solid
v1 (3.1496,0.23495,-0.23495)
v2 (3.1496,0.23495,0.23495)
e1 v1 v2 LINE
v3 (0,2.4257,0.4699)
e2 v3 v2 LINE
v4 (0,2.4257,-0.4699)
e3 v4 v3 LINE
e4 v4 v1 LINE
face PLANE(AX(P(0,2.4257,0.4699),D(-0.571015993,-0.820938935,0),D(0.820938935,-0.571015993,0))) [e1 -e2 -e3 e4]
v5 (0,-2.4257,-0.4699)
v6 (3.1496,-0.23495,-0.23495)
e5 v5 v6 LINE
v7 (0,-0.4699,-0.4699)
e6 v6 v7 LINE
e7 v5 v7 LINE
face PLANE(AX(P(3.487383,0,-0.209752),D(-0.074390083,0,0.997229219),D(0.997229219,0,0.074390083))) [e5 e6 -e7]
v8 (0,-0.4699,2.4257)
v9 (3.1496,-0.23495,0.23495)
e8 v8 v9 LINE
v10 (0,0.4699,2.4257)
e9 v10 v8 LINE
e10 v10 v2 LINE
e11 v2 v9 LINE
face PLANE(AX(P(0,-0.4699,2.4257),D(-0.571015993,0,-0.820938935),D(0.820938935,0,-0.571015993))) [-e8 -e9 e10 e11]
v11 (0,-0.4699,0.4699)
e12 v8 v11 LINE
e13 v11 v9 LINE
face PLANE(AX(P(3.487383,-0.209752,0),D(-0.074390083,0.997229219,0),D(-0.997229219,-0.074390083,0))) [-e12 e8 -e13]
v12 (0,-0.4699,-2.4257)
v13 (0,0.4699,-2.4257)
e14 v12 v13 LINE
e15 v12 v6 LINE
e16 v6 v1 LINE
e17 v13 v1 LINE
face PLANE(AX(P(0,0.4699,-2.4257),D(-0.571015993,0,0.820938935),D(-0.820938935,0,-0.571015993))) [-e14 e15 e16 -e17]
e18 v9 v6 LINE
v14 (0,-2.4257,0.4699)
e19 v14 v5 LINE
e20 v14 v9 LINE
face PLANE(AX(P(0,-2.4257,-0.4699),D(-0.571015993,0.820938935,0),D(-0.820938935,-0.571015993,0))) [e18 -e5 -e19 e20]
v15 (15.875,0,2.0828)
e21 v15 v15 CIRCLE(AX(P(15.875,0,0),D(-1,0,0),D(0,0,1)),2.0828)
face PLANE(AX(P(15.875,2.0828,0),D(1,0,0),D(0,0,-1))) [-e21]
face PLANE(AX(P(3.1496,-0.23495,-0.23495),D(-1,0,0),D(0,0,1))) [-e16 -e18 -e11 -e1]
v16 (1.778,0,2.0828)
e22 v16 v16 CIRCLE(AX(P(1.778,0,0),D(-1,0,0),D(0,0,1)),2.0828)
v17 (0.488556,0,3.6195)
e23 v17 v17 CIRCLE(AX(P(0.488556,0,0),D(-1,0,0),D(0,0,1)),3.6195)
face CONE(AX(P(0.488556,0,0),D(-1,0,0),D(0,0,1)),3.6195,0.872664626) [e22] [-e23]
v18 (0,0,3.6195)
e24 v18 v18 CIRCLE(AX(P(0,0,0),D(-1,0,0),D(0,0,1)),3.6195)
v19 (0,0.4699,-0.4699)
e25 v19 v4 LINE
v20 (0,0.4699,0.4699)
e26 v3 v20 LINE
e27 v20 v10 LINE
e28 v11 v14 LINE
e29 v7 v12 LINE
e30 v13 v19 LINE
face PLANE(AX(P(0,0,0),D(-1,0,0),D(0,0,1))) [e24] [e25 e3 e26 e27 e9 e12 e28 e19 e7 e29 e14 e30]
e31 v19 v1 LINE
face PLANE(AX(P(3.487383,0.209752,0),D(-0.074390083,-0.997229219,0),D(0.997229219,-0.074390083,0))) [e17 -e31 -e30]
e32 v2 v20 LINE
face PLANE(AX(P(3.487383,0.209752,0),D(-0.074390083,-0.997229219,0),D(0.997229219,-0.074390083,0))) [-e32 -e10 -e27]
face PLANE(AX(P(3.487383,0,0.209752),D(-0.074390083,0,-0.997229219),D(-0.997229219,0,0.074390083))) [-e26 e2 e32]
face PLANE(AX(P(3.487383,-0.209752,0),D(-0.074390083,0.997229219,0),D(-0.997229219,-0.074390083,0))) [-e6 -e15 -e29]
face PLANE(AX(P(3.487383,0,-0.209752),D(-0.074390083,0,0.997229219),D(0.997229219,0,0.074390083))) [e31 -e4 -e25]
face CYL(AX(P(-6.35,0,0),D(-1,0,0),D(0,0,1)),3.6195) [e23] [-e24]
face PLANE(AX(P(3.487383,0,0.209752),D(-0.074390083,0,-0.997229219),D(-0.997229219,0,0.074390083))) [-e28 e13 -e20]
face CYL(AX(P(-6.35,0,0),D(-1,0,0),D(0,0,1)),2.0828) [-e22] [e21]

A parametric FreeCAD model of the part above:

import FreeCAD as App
import Part
import Sketcher
Q = App.Units.Quantity


def add_polygon(sketch, points):
    """Adds a closed chain of lines whose ends are joined by coincident constraints."""
    first, n = sketch.GeometryCount, len(points)
    for a, b in zip(points, points[1:] + points[:1]):
        sketch.addGeometry(Part.LineSegment(App.Vector(*a, 0), App.Vector(*b, 0)), False)
    for i in range(n):
        sketch.addConstraint(Sketcher.Constraint("Coincident", first + i, 2, first + (i + 1) % n, 1))

doc = App.newDocument("Part")
body = doc.addObject("PartDesign::Body", "Body")

# Sketch on XY plane
sketch1 = doc.addObject("Sketcher::SketchObject", "Sketch")
body.addObject(sketch1)
sketch1.AttachmentSupport = (doc.XY_Plane, [""])
sketch1.MapMode = "FlatFace"
add_polygon(sketch1, [(0, 3.62), (0, 0), (15.88, 0), (15.88, 2.08), (1.78, 2.08), (0.49, 3.62)])  # lines 0-5
sketch1.addConstraint([
    Sketcher.Constraint("Vertical", 0),
    Sketcher.Constraint("Horizontal", 1),
    Sketcher.Constraint("Vertical", 2),
    Sketcher.Constraint("Horizontal", 3),
    Sketcher.Constraint("Horizontal", 5),
    Sketcher.Constraint("Coincident", 0, 2, -1, 1),
    Sketcher.Constraint("Angle", 4, Q("130 deg")),
    Sketcher.Constraint("DistanceX", 1, 1, 1, 2, Q("0.625 in")),
    Sketcher.Constraint("DistanceX", 3, 2, 3, 1, Q("0.555 in")),
    Sketcher.Constraint("DistanceY", 2, 1, 2, 2, Q("0.082 in")),
    Sketcher.Constraint("DistanceY", 0, 2, 0, 1, Q("0.1425 in")),
])
revolution = doc.addObject("PartDesign::Revolution", "Revolution")
body.addObject(revolution)
revolution.Profile = sketch1
revolution.ReferenceAxis = (sketch1, ["H_Axis"])
revolution.Angle = 360

# Sketch on YZ plane
sketch2 = doc.addObject("Sketcher::SketchObject", "Sketch001")
body.addObject(sketch2)
sketch2.AttachmentSupport = (doc.YZ_Plane, [""])
sketch2.MapMode = "FlatFace"
add_polygon(sketch2, [(2.4, 0.5), (2.4, -0.5), (-2.4, -0.5), (-2.4, 0.5)])  # lines 0-3
sketch2.addConstraint([
    Sketcher.Constraint("Vertical", 0),
    Sketcher.Constraint("Horizontal", 1),
    Sketcher.Constraint("Vertical", 2),
    Sketcher.Constraint("Horizontal", 3),
    Sketcher.Constraint("Symmetric", 0, 2, 2, 2, -1, 1),
    Sketcher.Constraint("DistanceX", 1, 2, 1, 1, Q("0.191 in")),
    Sketcher.Constraint("DistanceY", 0, 2, 0, 1, Q("0.037 in")),
])

# Sketch on YZ plane
sketch3 = doc.addObject("Sketcher::SketchObject", "Sketch002")
body.addObject(sketch3)
sketch3.AttachmentSupport = (doc.YZ_Plane, [""])
sketch3.MapMode = "FlatFace"
sketch3.AttachmentOffset = App.Placement(App.Vector(0, 0, 0.124 * 25.4), App.Rotation())
add_polygon(sketch3, [(0.23, 0.23), (0.23, -0.23), (-0.23, -0.23), (-0.23, 0.23)])  # lines 0-3
sketch3.addConstraint([
    Sketcher.Constraint("Vertical", 0),
    Sketcher.Constraint("Horizontal", 1),
    Sketcher.Constraint("Vertical", 2),
    Sketcher.Constraint("Horizontal", 3),
    Sketcher.Constraint("Symmetric", 0, 2, 2, 2, -1, 1),
    Sketcher.Constraint("Equal", 3, 0),
    Sketcher.Constraint("DistanceX", 1, 2, 1, 1, Q("0.0185 in")),
])

subtractiveloft = doc.addObject("PartDesign::SubtractiveLoft", "SubtractiveLoft")
body.addObject(subtractiveloft)
subtractiveloft.Profile = sketch2
subtractiveloft.Sections = [sketch3]
doc.recompute()

polarpattern = doc.addObject("PartDesign::PolarPattern", "PolarPattern")
body.addObject(polarpattern)
polarpattern.Originals = [subtractiveloft]
polarpattern.Axis = (doc.X_Axis, [""])
polarpattern.Angle = 90
polarpattern.Occurrences = 2
body.Tip = polarpattern

doc.recompute()
